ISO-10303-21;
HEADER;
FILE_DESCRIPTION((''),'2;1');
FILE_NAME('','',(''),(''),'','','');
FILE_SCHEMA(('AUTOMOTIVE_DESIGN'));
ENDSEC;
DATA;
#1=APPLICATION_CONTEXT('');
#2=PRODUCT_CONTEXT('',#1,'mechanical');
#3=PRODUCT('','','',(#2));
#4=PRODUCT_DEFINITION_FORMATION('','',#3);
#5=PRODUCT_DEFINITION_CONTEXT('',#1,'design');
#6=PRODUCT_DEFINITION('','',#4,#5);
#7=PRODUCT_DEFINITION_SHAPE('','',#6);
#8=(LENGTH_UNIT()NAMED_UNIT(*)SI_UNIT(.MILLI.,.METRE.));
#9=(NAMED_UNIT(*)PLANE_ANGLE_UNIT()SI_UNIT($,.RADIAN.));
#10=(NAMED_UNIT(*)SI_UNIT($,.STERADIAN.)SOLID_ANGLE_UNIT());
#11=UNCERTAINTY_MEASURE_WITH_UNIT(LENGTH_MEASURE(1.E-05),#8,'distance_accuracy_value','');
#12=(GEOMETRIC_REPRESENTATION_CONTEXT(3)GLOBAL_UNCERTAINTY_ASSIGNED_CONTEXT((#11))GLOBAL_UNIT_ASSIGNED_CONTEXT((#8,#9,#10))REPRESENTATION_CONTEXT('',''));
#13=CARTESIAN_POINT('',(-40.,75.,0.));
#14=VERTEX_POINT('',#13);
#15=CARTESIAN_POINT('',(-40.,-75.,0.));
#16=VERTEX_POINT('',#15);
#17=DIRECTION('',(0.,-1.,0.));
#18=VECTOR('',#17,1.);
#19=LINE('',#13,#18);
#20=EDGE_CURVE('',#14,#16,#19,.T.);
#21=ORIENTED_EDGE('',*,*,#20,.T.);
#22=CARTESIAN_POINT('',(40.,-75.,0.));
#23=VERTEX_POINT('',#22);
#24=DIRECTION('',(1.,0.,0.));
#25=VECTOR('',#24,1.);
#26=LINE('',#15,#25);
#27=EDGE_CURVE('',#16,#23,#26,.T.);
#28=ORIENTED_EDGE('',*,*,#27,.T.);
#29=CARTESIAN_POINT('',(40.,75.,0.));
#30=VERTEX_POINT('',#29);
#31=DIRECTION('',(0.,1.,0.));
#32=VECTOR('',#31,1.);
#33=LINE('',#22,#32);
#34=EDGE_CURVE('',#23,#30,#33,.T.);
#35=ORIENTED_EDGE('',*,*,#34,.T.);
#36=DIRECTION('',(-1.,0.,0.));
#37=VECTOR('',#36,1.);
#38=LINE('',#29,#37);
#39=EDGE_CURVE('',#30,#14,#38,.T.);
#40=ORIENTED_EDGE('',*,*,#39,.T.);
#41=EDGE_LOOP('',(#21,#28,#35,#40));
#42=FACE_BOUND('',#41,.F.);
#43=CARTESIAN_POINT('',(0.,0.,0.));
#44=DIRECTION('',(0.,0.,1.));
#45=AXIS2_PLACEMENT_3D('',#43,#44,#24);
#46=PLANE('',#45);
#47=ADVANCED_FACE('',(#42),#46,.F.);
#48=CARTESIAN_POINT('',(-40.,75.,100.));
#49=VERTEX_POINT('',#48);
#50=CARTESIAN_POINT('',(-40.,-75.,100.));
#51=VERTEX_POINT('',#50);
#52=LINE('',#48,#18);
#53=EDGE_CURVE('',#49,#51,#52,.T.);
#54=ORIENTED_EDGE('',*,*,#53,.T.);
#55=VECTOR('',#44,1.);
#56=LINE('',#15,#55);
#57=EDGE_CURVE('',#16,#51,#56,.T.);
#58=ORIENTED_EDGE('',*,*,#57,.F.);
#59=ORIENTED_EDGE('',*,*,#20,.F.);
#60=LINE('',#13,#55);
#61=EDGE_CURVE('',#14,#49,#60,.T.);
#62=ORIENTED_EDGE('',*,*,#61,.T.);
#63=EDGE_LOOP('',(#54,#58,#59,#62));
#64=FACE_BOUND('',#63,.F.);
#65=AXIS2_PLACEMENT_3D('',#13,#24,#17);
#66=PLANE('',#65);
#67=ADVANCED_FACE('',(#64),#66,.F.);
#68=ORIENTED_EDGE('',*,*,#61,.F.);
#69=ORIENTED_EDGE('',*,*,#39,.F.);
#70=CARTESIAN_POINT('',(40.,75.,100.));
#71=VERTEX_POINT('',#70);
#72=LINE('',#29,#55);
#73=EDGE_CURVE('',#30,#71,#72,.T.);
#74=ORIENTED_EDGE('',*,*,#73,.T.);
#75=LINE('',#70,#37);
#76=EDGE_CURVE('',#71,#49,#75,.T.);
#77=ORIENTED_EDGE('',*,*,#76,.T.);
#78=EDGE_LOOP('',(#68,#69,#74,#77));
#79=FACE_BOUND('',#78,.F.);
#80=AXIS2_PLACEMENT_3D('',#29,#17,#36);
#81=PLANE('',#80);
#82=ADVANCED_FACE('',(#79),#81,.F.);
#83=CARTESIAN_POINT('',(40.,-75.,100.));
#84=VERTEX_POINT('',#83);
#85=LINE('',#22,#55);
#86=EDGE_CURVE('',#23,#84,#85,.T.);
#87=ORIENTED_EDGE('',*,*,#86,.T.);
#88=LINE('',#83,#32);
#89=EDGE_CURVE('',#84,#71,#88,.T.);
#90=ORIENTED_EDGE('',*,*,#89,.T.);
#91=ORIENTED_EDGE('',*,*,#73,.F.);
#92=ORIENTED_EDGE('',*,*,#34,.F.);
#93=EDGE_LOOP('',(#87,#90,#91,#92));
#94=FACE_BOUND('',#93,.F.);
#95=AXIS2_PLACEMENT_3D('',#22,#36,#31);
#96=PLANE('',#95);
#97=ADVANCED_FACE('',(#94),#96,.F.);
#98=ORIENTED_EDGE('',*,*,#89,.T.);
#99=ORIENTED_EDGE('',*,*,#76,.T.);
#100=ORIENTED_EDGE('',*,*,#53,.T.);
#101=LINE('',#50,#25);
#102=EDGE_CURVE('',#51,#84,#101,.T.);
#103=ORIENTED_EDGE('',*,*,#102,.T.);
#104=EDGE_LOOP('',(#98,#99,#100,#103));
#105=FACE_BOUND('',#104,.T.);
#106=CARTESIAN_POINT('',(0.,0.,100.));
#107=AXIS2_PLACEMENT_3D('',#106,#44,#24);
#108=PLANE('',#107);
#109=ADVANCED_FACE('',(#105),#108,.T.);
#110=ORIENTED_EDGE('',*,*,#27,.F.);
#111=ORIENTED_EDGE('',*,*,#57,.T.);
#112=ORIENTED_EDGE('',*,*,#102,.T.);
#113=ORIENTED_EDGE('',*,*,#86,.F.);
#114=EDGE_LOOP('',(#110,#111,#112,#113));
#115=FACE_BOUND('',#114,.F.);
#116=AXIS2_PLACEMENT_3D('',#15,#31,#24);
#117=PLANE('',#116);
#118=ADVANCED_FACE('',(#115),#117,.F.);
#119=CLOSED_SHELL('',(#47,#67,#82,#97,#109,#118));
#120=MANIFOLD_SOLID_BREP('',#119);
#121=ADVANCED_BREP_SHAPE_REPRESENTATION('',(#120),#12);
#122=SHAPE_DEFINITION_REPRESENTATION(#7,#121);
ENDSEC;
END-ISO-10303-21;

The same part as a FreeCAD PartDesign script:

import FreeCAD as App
import Part
import Sketcher
Q = App.Units.Quantity


def add_polygon(sketch, points):
    """Adds a closed chain of lines whose ends are joined by coincident constraints."""
    first, n = sketch.GeometryCount, len(points)
    for a, b in zip(points, points[1:] + points[:1]):
        sketch.addGeometry(Part.LineSegment(App.Vector(*a, 0), App.Vector(*b, 0)), False)
    for i in range(n):
        sketch.addConstraint(Sketcher.Constraint("Coincident", first + i, 2, first + (i + 1) % n, 1))

doc = App.newDocument("Part")
body = doc.addObject("PartDesign::Body", "Body")

# Sketch on XY plane
sketch1 = body.newObject("Sketcher::SketchObject", "Sketch")
sketch1.AttachmentSupport = (doc.getObject("XY_Plane"), [""])
sketch1.MapMode = "FlatFace"
add_polygon(sketch1, [(-40, 75), (-40, -75), (40, -75), (40, 75)])  # lines 0-3
sketch1.addConstraint([
    Sketcher.Constraint("Vertical", 0),
    Sketcher.Constraint("Horizontal", 1),
    Sketcher.Constraint("Vertical", 2),
    Sketcher.Constraint("Horizontal", 3),
    Sketcher.Constraint("Symmetric", 0, 2, 2, 2, -1, 1),
    Sketcher.Constraint("DistanceX", 1, 1, 1, 2, Q("3.1496 in")),
    Sketcher.Constraint("DistanceY", 0, 2, 0, 1, Q("5.9055 in")),
])
pad1 = body.newObject("PartDesign::Pad", "Pad")
pad1.Profile = sketch1
pad1.Length = Q("3.9370079 in")

doc.recompute()
